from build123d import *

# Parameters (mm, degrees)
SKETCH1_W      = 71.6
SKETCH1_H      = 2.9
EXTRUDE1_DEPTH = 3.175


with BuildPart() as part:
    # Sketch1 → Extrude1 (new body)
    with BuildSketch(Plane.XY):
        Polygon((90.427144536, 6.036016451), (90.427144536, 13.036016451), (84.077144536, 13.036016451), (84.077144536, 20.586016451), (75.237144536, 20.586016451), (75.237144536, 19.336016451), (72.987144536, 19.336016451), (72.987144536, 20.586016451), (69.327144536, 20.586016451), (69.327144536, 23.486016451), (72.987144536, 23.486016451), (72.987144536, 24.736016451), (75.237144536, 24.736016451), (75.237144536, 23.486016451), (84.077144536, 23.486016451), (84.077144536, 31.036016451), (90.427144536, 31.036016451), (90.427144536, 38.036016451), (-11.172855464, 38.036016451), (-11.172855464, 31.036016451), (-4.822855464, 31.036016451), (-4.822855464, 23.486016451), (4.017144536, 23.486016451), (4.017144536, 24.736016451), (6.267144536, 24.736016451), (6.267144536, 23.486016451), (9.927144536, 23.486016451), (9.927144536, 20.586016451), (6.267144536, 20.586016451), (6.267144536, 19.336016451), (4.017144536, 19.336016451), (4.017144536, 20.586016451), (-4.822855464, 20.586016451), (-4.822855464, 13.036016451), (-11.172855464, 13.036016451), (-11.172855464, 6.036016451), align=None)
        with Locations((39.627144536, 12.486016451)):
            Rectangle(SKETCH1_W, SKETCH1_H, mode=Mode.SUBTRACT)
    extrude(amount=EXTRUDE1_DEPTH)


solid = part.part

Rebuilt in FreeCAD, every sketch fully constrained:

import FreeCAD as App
import Part
import Sketcher
from FreeCAD import Vector
Q = App.Units.Quantity


def add_polygon(sketch, points):
    """Adds a closed chain of lines whose ends are joined by coincident constraints."""
    first, n = sketch.GeometryCount, len(points)
    for a, b in zip(points, points[1:] + points[:1]):
        sketch.addGeometry(Part.LineSegment(App.Vector(*a, 0), App.Vector(*b, 0)), False)
    for i in range(n):
        sketch.addConstraint(Sketcher.Constraint("Coincident", first + i, 2, first + (i + 1) % n, 1))

doc = App.newDocument("Part")
params = doc.addObject("Spreadsheet::Sheet", "Params")
for row, (alias, value) in enumerate([
    ("sketch1_height", "7 mm"),
    ("sketch1_width", "101.6 mm"),
    ("sketch1_width2", "71.6 mm"),
    ("sketch1_height2", "2.9 mm"),
    ("sketch1_width3", "6.35 mm"),
    ("pad1_length", "3.175 mm"),
], start=1):
    params.set(f"A{row}", alias)
    params.set(f"B{row}", "=" + value)
    params.setAlias(f"B{row}", alias)

body = doc.addObject("PartDesign::Body", "Body")

sketch1 = doc.addObject("Sketcher::SketchObject", "Sketch")
body.addObject(sketch1)
sketch1.AttachmentSupport = (doc.XY_Plane, [""])
sketch1.MapMode = "FlatFace"
add_polygon(sketch1, [(90.4, 6), (90.4, 13), (84.1, 13), (84.1, 20.6), (75.2, 20.6), (75.2, 19.3), (73, 19.3), (73, 20.6), (69.3, 20.6), (69.3, 23.5), (73, 23.5), (73, 24.7), (75.2, 24.7), (75.2, 23.5), (84.1, 23.5), (84.1, 31), (90.4, 31), (90.4, 38), (-11.2, 38), (-11.2, 31), (-4.8, 31), (-4.8, 23.5), (4, 23.5), (4, 24.7), (6.3, 24.7), (6.3, 23.5), (9.9, 23.5), (9.9, 20.6), (6.3, 20.6), (6.3, 19.3), (4, 19.3), (4, 20.6), (-4.8, 20.6), (-4.8, 13), (-11.2, 13), (-11.2, 6)])
add_polygon(sketch1, [(75.4, 11), (3.8, 11), (3.8, 13.9), (75.4, 13.9)])
sketch1.addConstraint([
    Sketcher.Constraint("Vertical", 0),
    Sketcher.Constraint("Horizontal", 1),
    Sketcher.Constraint("Vertical", 2),
    Sketcher.Constraint("Horizontal", 3),
    Sketcher.Constraint("Vertical", 4),
    Sketcher.Constraint("Horizontal", 5),
    Sketcher.Constraint("Vertical", 6),
    Sketcher.Constraint("Horizontal", 7),
    Sketcher.Constraint("Vertical", 8),
    Sketcher.Constraint("Horizontal", 9),
    Sketcher.Constraint("Vertical", 10),
    Sketcher.Constraint("Horizontal", 11),
    Sketcher.Constraint("Vertical", 12),
    Sketcher.Constraint("Horizontal", 13),
    Sketcher.Constraint("Vertical", 14),
    Sketcher.Constraint("Horizontal", 15),
    Sketcher.Constraint("Vertical", 16),
    Sketcher.Constraint("Horizontal", 17),
    Sketcher.Constraint("Vertical", 18),
    Sketcher.Constraint("Horizontal", 19),
    Sketcher.Constraint("Vertical", 20),
    Sketcher.Constraint("Horizontal", 21),
    Sketcher.Constraint("Vertical", 22),
    Sketcher.Constraint("Horizontal", 23),
    Sketcher.Constraint("Vertical", 24),
    Sketcher.Constraint("Horizontal", 25),
    Sketcher.Constraint("Vertical", 26),
    Sketcher.Constraint("Horizontal", 27),
    Sketcher.Constraint("Vertical", 28),
    Sketcher.Constraint("Horizontal", 29),
    Sketcher.Constraint("Vertical", 30),
    Sketcher.Constraint("Horizontal", 31),
    Sketcher.Constraint("Vertical", 32),
    Sketcher.Constraint("Horizontal", 33),
    Sketcher.Constraint("Vertical", 34),
    Sketcher.Constraint("Horizontal", 35),
    Sketcher.Constraint("Horizontal", 36),
    Sketcher.Constraint("Vertical", 37),
    Sketcher.Constraint("Horizontal", 38),
    Sketcher.Constraint("Vertical", 39),
    Sketcher.Constraint("Horizontal", 3, 2, 6, 2),
    Sketcher.Constraint("Horizontal", 9, 2, 12, 2),
    Sketcher.Constraint("Horizontal", 15, 2, 18, 2),
    Sketcher.Constraint("Horizontal", 13, 2, 20, 2),
    Sketcher.Constraint("Horizontal", 11, 2, 22, 2),
    Sketcher.Constraint("Horizontal", 21, 2, 24, 2),
    Sketcher.Constraint("Horizontal", 7, 2, 26, 2),
    Sketcher.Constraint("Horizontal", 5, 2, 28, 2),
    Sketcher.Constraint("Horizontal", 27, 2, 30, 2),
    Sketcher.Constraint("Horizontal", 1, 2, 32, 2),
    Sketcher.Constraint("Vertical", 6, 2, 9, 2),
    Sketcher.Constraint("Vertical", 4, 2, 11, 2),
    Sketcher.Constraint("Vertical", 2, 2, 13, 2),
    Sketcher.Constraint("Vertical", 0, 2, 15, 2),
    Sketcher.Constraint("Vertical", 24, 2, 27, 2),
    Sketcher.Constraint("Vertical", 22, 2, 29, 2),
    Sketcher.Constraint("Vertical", 20, 2, 31, 2),
    Sketcher.Constraint("Vertical", 18, 2, 33, 2),
    Sketcher.Constraint("Equal", 15, 19),
    Sketcher.Constraint("Equal", 13, 21),
    Sketcher.Constraint("Equal", 11, 23),
    Sketcher.Constraint("Equal", 9, 25),
    Sketcher.Constraint("Equal", 6, 10),
    Sketcher.Constraint("Equal", 2, 14),
    Sketcher.Constraint("Equal", 0, 16),
    Sketcher.Constraint("Equal", 26, 37),
    Sketcher.Constraint("DistanceY", 0, 1, 0, 2, Q("7 mm")),
    Sketcher.Constraint("DistanceX", 17, 2, 17, 1, Q("101.6 mm")),
    Sketcher.Constraint("DistanceX", 36, 2, 36, 1, Q("71.6 mm")),
    Sketcher.Constraint("DistanceY", 8, 1, 8, 2, Q("2.9 mm")),
    Sketcher.Constraint("DistanceY", 36, 2, 32, 2, Q("2 mm")),
    Sketcher.Constraint("DistanceX", 1, 2, 1, 1, Q("6.35 mm")),
    Sketcher.Constraint("DistanceX", 3, 2, 3, 1, Q("8.84 mm")),
    Sketcher.Constraint("DistanceX", 5, 2, 5, 1, Q("2.25 mm")),
    Sketcher.Constraint("DistanceX", 7, 2, 7, 1, Q("3.66 mm")),
    Sketcher.Constraint("DistanceY", 2, 1, 2, 2, Q("7.55 mm")),
    Sketcher.Constraint("DistanceY", 4, 2, 4, 1, Q("1.25 mm")),
    Sketcher.Constraint("DistanceX", 36, 2, 29, 2, Q("0.19 mm")),
    Sketcher.Constraint("DistanceX", -1, 1, 0, 2, Q("90.427145 mm")),
    Sketcher.Constraint("DistanceY", -1, 1, 0, 2, Q("13.036016 mm")),
])
sketch1.setExpression("Constraints[106]", "Params.sketch1_height")
sketch1.setExpression("Constraints[107]", "Params.sketch1_width")
sketch1.setExpression("Constraints[108]", "Params.sketch1_width2")
sketch1.setExpression("Constraints[109]", "Params.sketch1_height2")
sketch1.setExpression("Constraints[111]", "Params.sketch1_width3")
pad1 = doc.addObject("PartDesign::Pad", "Pad")
body.addObject(pad1)
pad1.Profile = sketch1
pad1.setExpression("Length", "Params.pad1_length")

doc.recompute()
